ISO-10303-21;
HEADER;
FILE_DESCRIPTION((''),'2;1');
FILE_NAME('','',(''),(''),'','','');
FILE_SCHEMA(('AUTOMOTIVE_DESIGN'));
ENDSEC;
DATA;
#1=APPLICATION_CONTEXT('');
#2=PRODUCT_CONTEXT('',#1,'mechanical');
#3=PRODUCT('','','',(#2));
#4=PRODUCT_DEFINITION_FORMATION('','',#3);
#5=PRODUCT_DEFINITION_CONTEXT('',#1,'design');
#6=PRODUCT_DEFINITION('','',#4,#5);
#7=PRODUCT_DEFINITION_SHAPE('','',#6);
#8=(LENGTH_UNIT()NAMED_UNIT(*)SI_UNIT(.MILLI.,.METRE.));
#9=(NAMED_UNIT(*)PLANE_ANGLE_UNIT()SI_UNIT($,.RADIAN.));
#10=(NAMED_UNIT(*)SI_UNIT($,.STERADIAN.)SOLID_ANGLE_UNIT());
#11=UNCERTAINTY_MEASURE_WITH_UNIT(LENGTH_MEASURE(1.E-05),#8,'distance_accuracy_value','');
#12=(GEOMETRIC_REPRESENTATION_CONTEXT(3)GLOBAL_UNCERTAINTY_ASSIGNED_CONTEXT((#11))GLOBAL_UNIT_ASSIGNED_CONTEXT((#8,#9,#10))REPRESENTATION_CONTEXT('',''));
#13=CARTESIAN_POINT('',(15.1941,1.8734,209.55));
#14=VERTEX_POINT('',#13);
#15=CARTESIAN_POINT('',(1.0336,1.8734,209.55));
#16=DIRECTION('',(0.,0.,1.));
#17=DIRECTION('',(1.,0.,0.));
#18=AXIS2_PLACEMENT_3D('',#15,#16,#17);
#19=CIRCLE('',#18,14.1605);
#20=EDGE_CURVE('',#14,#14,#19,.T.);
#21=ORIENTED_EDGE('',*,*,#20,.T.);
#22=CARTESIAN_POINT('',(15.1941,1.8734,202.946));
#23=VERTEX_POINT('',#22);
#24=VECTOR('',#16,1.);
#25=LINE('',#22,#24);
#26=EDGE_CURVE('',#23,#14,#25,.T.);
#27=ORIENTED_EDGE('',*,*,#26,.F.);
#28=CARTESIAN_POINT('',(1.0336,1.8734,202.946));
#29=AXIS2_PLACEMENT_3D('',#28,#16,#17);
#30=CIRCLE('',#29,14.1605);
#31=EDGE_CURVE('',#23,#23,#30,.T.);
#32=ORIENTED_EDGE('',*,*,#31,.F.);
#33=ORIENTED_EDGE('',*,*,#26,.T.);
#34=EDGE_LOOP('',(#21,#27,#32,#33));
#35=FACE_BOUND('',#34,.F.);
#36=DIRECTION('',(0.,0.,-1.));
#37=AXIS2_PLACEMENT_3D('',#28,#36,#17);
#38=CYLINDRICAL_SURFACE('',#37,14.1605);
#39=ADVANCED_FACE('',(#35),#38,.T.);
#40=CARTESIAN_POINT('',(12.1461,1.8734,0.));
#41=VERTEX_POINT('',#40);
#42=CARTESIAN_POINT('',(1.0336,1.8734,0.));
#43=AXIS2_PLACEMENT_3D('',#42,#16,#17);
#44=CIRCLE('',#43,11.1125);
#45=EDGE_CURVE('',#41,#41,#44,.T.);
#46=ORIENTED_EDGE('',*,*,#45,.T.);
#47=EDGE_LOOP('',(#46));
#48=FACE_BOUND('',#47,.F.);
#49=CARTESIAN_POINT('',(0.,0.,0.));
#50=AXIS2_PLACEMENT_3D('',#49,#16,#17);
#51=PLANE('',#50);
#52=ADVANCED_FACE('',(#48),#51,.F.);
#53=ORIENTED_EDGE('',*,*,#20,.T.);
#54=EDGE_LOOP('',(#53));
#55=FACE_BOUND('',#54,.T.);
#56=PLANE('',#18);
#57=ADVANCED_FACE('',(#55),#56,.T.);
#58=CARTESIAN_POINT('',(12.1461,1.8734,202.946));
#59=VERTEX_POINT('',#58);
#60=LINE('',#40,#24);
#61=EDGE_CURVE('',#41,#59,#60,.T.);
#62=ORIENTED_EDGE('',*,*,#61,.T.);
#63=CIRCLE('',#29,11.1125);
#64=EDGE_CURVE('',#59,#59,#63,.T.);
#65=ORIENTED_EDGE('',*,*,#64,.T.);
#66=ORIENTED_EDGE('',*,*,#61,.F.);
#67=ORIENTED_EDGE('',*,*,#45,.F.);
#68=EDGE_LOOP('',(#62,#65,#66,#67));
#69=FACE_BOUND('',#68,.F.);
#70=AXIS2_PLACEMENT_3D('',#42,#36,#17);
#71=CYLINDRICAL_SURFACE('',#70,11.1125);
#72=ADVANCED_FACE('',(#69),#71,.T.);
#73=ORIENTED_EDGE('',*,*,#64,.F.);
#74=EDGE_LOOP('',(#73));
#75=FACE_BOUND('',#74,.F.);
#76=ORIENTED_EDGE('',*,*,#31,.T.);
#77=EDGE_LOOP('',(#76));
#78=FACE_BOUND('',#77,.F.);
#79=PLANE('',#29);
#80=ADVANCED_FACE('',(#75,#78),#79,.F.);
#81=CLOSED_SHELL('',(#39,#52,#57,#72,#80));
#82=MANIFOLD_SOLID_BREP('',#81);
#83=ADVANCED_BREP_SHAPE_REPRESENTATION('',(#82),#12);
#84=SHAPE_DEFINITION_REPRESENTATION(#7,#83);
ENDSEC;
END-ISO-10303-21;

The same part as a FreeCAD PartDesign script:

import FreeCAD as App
import Part
import Sketcher
Q = App.Units.Quantity

doc = App.newDocument("Part")
body = doc.addObject("PartDesign::Body", "Body")

# Sketch on XY plane
sketch1 = body.newObject("Sketcher::SketchObject", "Sketch")
sketch1.AttachmentSupport = (doc.getObject("XY_Plane"), [""])
sketch1.MapMode = "FlatFace"
sketch1.addGeometry(Part.Circle(App.Vector(1, 2, 0), App.Vector(0, 0, 1), 11), False)
sketch1.addConstraint(Sketcher.Constraint("Diameter", 0, Q("0.875 in")))
sketch1.addConstraint(Sketcher.Constraint("DistanceX", -1, 1, 0, 3, Q("0.0407 in")))
sketch1.addConstraint(Sketcher.Constraint("DistanceY", -1, 1, 0, 3, Q("1.8734 mm")))
pad1 = body.newObject("PartDesign::Pad", "Pad")
pad1.Profile = sketch1
pad1.Length = Q("7.99 in")

# Sketch on XY plane
sketch2 = body.newObject("Sketcher::SketchObject", "Sketch001")
sketch2.AttachmentSupport = (doc.getObject("XY_Plane"), [""])
sketch2.MapMode = "FlatFace"
sketch2.AttachmentOffset = App.Placement(App.Vector(0, 0, 7.99 * 25.4), App.Rotation())
sketch2.addGeometry(Part.Circle(App.Vector(1, 2, 0), App.Vector(0, 0, 1), 14), False)
sketch2.addConstraint(Sketcher.Constraint("Diameter", 0, Q("1.115 in")))
sketch2.addConstraint(Sketcher.Constraint("DistanceX", -1, 1, 0, 3, Q("0.0407 in")))
sketch2.addConstraint(Sketcher.Constraint("DistanceY", -1, 1, 0, 3, Q("1.8734 mm")))
pad2 = body.newObject("PartDesign::Pad", "Pad001")
pad2.Profile = sketch2
pad2.Length = Q("0.26 in")

doc.recompute()
